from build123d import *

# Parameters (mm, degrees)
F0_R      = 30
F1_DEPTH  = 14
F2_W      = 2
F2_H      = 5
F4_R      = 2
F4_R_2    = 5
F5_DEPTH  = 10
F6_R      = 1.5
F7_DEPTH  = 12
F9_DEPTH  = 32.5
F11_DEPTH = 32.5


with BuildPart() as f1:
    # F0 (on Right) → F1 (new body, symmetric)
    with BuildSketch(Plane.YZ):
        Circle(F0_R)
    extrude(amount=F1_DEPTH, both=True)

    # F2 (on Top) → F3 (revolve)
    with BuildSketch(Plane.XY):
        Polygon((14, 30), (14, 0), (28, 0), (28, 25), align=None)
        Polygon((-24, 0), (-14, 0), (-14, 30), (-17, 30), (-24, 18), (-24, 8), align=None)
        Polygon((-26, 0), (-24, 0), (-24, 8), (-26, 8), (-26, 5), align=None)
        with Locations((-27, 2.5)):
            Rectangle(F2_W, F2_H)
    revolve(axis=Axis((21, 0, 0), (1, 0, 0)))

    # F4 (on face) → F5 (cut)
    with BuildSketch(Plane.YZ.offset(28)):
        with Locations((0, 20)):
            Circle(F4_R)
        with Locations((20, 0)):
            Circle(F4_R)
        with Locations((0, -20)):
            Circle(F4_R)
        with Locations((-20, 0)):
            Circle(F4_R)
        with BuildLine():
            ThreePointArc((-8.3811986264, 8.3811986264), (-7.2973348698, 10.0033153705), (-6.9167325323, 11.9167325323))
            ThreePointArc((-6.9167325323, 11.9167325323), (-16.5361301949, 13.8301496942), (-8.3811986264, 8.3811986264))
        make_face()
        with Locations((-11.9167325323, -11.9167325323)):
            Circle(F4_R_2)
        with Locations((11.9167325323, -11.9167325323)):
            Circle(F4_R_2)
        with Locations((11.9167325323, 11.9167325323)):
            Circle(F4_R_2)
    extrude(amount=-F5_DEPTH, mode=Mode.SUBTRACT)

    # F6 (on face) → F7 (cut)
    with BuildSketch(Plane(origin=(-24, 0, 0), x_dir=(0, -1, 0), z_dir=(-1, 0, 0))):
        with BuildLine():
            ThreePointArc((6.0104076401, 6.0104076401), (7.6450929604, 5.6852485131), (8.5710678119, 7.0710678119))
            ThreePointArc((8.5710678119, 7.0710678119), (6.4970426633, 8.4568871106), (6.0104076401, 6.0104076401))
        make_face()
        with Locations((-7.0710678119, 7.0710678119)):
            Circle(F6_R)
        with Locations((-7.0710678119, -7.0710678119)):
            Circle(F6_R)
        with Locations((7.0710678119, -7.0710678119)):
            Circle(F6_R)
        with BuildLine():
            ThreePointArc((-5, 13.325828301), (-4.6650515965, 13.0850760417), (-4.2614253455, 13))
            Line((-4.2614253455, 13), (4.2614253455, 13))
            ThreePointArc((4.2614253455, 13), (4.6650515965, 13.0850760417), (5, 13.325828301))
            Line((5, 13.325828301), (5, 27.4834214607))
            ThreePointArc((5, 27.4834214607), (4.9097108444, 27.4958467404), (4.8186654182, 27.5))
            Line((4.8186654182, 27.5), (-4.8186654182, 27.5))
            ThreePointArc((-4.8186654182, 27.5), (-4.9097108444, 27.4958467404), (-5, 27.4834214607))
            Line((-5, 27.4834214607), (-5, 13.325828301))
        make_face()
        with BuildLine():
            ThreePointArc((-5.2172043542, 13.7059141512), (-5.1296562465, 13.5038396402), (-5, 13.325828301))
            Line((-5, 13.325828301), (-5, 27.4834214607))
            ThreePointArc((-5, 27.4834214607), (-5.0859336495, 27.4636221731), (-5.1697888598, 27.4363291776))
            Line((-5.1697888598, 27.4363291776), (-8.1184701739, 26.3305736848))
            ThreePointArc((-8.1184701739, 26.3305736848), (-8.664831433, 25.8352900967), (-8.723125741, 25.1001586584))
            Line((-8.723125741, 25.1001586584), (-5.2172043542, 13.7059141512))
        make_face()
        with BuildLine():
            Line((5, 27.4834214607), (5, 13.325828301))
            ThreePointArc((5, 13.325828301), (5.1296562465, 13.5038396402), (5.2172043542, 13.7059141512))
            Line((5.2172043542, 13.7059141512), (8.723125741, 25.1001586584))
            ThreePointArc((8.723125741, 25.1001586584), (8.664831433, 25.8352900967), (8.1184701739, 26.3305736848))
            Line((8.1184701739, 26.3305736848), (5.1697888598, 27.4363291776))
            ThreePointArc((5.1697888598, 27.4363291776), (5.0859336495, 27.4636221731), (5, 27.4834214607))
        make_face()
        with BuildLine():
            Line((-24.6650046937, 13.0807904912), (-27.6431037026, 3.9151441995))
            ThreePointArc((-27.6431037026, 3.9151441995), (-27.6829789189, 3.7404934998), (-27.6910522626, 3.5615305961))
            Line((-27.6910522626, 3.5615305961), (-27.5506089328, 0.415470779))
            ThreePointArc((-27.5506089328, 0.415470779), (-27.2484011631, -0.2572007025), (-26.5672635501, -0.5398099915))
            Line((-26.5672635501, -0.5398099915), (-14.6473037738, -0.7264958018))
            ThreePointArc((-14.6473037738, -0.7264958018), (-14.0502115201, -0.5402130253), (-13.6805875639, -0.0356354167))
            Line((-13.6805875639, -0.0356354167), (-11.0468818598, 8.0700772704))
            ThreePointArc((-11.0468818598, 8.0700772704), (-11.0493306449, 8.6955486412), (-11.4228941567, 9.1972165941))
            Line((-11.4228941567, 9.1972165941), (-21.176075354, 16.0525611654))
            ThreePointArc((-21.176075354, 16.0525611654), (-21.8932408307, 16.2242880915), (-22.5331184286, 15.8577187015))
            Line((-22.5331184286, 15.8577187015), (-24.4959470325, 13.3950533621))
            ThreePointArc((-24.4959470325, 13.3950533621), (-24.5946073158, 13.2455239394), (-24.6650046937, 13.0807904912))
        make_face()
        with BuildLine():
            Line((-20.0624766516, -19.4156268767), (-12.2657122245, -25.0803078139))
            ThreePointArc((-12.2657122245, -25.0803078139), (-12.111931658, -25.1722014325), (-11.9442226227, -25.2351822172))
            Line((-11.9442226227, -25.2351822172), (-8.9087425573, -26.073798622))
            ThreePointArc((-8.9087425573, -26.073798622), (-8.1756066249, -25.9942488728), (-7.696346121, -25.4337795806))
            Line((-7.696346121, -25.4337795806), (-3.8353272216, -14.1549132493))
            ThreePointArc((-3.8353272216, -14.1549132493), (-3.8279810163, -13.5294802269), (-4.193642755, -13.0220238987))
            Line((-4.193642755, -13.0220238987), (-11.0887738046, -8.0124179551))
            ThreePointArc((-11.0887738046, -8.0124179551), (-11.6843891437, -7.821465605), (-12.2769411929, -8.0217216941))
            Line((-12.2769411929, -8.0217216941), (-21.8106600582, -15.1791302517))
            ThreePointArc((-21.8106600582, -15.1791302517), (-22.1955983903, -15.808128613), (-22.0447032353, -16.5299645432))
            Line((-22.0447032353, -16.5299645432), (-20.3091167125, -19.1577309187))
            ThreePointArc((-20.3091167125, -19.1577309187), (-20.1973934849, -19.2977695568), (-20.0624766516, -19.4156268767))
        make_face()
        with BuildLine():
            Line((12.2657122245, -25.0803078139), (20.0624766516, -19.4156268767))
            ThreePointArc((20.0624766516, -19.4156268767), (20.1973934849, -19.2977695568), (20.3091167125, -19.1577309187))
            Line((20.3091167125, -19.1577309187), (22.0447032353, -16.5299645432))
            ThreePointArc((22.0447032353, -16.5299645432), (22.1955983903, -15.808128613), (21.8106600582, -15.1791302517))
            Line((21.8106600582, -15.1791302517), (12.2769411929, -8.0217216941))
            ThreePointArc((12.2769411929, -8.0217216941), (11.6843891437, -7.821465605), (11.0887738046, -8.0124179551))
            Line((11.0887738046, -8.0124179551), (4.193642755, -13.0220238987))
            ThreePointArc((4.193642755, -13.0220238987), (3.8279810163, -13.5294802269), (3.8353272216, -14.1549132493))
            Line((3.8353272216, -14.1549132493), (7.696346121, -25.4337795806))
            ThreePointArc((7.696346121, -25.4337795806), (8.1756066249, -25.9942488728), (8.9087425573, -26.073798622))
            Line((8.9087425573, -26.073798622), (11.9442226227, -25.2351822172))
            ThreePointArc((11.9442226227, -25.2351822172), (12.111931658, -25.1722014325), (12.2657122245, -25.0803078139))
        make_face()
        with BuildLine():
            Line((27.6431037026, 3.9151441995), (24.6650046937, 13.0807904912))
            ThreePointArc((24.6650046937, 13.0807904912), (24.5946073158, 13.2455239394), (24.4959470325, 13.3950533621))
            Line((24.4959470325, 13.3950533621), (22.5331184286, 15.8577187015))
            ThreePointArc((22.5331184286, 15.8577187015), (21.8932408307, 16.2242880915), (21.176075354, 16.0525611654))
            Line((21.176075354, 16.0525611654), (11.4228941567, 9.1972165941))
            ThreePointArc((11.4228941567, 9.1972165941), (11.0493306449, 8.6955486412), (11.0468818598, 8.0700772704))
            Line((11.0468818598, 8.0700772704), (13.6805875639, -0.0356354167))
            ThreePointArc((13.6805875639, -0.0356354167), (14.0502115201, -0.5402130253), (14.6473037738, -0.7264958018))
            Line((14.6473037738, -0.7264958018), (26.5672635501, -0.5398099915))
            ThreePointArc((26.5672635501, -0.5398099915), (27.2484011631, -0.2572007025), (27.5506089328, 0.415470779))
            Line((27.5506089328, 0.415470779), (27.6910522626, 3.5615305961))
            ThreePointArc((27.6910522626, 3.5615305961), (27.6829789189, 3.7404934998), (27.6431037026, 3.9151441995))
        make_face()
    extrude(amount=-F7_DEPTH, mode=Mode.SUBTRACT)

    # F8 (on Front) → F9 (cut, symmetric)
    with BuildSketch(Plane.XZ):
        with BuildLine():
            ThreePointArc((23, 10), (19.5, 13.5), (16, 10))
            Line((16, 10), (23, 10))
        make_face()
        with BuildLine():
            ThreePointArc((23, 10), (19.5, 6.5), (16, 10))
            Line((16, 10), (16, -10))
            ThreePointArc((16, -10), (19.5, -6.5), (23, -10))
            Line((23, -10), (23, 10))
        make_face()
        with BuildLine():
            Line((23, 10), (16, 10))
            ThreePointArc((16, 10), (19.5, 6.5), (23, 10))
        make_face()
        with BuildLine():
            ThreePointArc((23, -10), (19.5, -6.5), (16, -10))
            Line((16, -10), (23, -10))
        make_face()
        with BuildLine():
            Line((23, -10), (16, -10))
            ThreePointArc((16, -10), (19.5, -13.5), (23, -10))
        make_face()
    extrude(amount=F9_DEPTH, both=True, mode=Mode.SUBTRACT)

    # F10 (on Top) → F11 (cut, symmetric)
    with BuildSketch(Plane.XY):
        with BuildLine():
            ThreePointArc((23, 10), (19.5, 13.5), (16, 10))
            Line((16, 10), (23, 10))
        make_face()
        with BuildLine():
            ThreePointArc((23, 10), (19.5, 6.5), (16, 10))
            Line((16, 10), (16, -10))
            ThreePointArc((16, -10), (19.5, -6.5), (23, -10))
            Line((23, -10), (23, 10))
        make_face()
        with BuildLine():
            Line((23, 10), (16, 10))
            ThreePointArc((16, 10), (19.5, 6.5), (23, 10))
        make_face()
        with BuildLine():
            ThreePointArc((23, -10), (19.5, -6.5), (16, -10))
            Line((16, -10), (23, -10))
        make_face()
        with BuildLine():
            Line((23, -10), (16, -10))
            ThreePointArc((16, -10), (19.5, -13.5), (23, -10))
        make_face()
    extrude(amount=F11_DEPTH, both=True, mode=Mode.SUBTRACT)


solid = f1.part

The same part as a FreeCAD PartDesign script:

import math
import FreeCAD as App
import Part
import Sketcher
from FreeCAD import Vector
Q = App.Units.Quantity


def add_polygon(sketch, points):
    """Adds a closed chain of lines whose ends are joined by coincident constraints."""
    first, n = sketch.GeometryCount, len(points)
    for a, b in zip(points, points[1:] + points[:1]):
        sketch.addGeometry(Part.LineSegment(App.Vector(*a, 0), App.Vector(*b, 0)), False)
    for i in range(n):
        sketch.addConstraint(Sketcher.Constraint("Coincident", first + i, 2, first + (i + 1) % n, 1))

doc = App.newDocument("Part")
body = doc.addObject("PartDesign::Body", "Body")

# Sketch on YZ plane
sketch1 = body.newObject("Sketcher::SketchObject", "Sketch")
sketch1.AttachmentSupport = (doc.getObject("YZ_Plane"), [""])
sketch1.MapMode = "FlatFace"
sketch1.addGeometry(Part.Circle(Vector(0, 0, 0), Vector(0, 0, 1), 30), False)
sketch1.addConstraint([
    Sketcher.Constraint("Coincident", 0, 3, -1, 1),
    Sketcher.Constraint("Diameter", 0, 60.0),
])
pad1 = body.newObject("PartDesign::Pad", "Pad")
pad1.Profile = sketch1
pad1.Length = 28
pad1.Midplane = True

# Sketch on XY plane
sketch2 = body.newObject("Sketcher::SketchObject", "Sketch001")
sketch2.AttachmentSupport = (doc.getObject("XY_Plane"), [""])
sketch2.MapMode = "FlatFace"
add_polygon(sketch2, [(14, 30), (14, 0), (28, 0), (28, 25)])  # lines 0-3
add_polygon(sketch2, [(-14, 0), (-14, 30), (-17, 30), (-24, 18), (-24, 8), (-26, 8), (-26, 5), (-28, 5), (-28, 0)])  # lines 4-12
sketch2.addConstraint([
    Sketcher.Constraint("Vertical", 0),
    Sketcher.Constraint("Horizontal", 1),
    Sketcher.Constraint("Vertical", 2),
    Sketcher.Constraint("Vertical", 4),
    Sketcher.Constraint("Horizontal", 5),
    Sketcher.Constraint("Vertical", 7),
    Sketcher.Constraint("Horizontal", 8),
    Sketcher.Constraint("Vertical", 9),
    Sketcher.Constraint("Horizontal", 10),
    Sketcher.Constraint("Vertical", 11),
    Sketcher.Constraint("Horizontal", 12),
    Sketcher.Constraint("Symmetric", 1, 2, 11, 2, -1, 1),
    Sketcher.Constraint("Symmetric", 3, 2, 4, 2, -2),
    Sketcher.Constraint("PointOnObject", 0, 2, -1),
    Sketcher.Constraint("Equal", 8, 10),
    Sketcher.Constraint("Equal", 5, 9),
    Sketcher.Constraint("DistanceX", 1, 1, 1, 2, 14.0),
    Sketcher.Constraint("DistanceX", 5, 2, 5, 1, 3.0),
    Sketcher.Constraint("DistanceX", 8, 2, 8, 1, 2.0),
    Sketcher.Constraint("DistanceY", 0, 2, 0, 1, 30.0),
    Sketcher.Constraint("DistanceY", 2, 1, 2, 2, 25.0),
    Sketcher.Constraint("DistanceY", 7, 2, 7, 1, 10.0),
    Sketcher.Constraint("DistanceY", 11, 2, 11, 1, 5.0),
    Sketcher.Constraint("DistanceX", -1, 1, 0, 2, 14.0),
])
revolution = body.newObject("PartDesign::Revolution", "Revolution")
revolution.Profile = sketch2
revolution.ReferenceAxis = (sketch2, ["H_Axis"])
revolution.Angle = 360

# Sketch on YZ plane
sketch3 = body.newObject("Sketcher::SketchObject", "Sketch002")
sketch3.AttachmentSupport = (doc.getObject("YZ_Plane"), [""])
sketch3.MapMode = "FlatFace"
sketch3.AttachmentOffset = App.Placement(Vector(0, 0, 28), App.Rotation())
sketch3.addGeometry([
    Part.Circle(Vector(0, 20, 0), Vector(0, 0, 1), 2),  # 0
    Part.Circle(Vector(20, 0, 0), Vector(0, 0, 1), 2),  # 1
    Part.Circle(Vector(0, -20, 0), Vector(0, 0, 1), 2),  # 2
    Part.Circle(Vector(-20, 0, 0), Vector(0, 0, 1), 2),  # 3
    Part.ArcOfCircle(Part.Circle(Vector(-11.9, 11.9, 0), Vector(0, 0, 1), 5), math.radians(-45), math.radians(0)),  # 4
    Part.ArcOfCircle(Part.Circle(Vector(-11.9, 11.9, 0), Vector(0, 0, 1), 5), math.radians(0), math.radians(315)),  # 5
    Part.Circle(Vector(-11.9, -11.9, 0), Vector(0, 0, 1), 5),  # 6
    Part.Circle(Vector(11.9, -11.9, 0), Vector(0, 0, 1), 5),  # 7
    Part.Circle(Vector(11.9, 11.9, 0), Vector(0, 0, 1), 5),  # 8
], False)
sketch3.addConstraint([
    Sketcher.Constraint("Tangent", 4, 1, 5, 2),
    Sketcher.Constraint("Coincident", 5, 1, 4, 2),
    Sketcher.Constraint("Equal", 0, 1),
    Sketcher.Constraint("Equal", 1, 2),
    Sketcher.Constraint("Equal", 2, 3),
    Sketcher.Constraint("Equal", 5, 6),
    Sketcher.Constraint("Equal", 6, 7),
    Sketcher.Constraint("Equal", 7, 8),
    Sketcher.Constraint("Symmetric", 0, 3, 2, 3, -1, 1),
    Sketcher.Constraint("Symmetric", 1, 3, 3, 3, -1, 1),
    Sketcher.Constraint("Symmetric", 4, 3, 7, 3, -1, 1),
    Sketcher.Constraint("Symmetric", 6, 3, 8, 3, -1, 1),
    Sketcher.Constraint("Symmetric", 6, 3, 7, 3, -2),
    Sketcher.Constraint("PointOnObject", 0, 3, -2),
    Sketcher.Constraint("PointOnObject", 1, 3, -1),
    Sketcher.Constraint("Horizontal", 8, 3, 5, 1),
    Sketcher.Constraint("Diameter", 0, 4.0),
    Sketcher.Constraint("Diameter", 6, 10.0),
    Sketcher.Constraint("DistanceY", -1, 1, 0, 3, 20.0),
    Sketcher.Constraint("DistanceX", -1, 1, 1, 3, 20.0),
    Sketcher.Constraint("DistanceX", 4, 1, -1, 1, 8.381199),
    Sketcher.Constraint("DistanceY", -1, 1, 4, 1, 8.381199),
    Sketcher.Constraint("DistanceY", 6, 3, 4, 1, 20.297931),
])
pocket1 = body.newObject("PartDesign::Pocket", "Pocket")
pocket1.Profile = sketch3
pocket1.Length = 10

# Sketch on YZ plane
sketch4 = body.newObject("Sketcher::SketchObject", "Sketch003")
sketch4.AttachmentSupport = (doc.getObject("YZ_Plane"), [""])
sketch4.MapMode = "FlatFace"
sketch4.AttachmentOffset = App.Placement(Vector(0, 0, -24), App.Rotation())
sketch4.addGeometry([
    Part.ArcOfCircle(Part.Circle(Vector(-7.07, 7.07, 0), Vector(0, 0, 1), 1.5), math.radians(180), math.radians(315)),  # 0
    Part.ArcOfCircle(Part.Circle(Vector(-7.07, 7.07, 0), Vector(0, 0, 1), 1.5), math.radians(-45), math.radians(180)),  # 1
    Part.Circle(Vector(7.07, 7.07, 0), Vector(0, 0, 1), 1.5),  # 2
    Part.Circle(Vector(7.07, -7.07, 0), Vector(0, 0, 1), 1.5),  # 3
    Part.Circle(Vector(-7.07, -7.07, 0), Vector(0, 0, 1), 1.5),  # 4
    Part.ArcOfCircle(Part.Circle(Vector(4.26, 14, 0), Vector(0, 0, 1), 1), math.radians(-90), math.radians(-42)),  # 5
    Part.LineSegment(Vector(4.26, 13, 0), Vector(-4.26, 13, 0)),  # 6
    Part.ArcOfCircle(Part.Circle(Vector(-4.26, 14, 0), Vector(0, 0, 1), 1), math.radians(-138), math.radians(-90)),  # 7
    Part.ArcOfCircle(Part.Circle(Vector(-4.26, 14, 0), Vector(0, 0, 1), 1), math.radians(-163), math.radians(-138)),  # 8
    Part.LineSegment(Vector(-5.22, 13.71, 0), Vector(-8.72, 25.1, 0)),  # 9
    Part.ArcOfCircle(Part.Circle(Vector(-7.77, 25.39, 0), Vector(0, 0, 1), 1), math.radians(111), math.radians(197)),  # 10
    Part.LineSegment(Vector(-8.12, 26.33, 0), Vector(-5.17, 27.44, 0)),  # 11
    Part.ArcOfCircle(Part.Circle(Vector(-4.82, 26.5, 0), Vector(0, 0, 1), 1), math.radians(100.45), math.radians(110.56)),  # 12
    Part.ArcOfCircle(Part.Circle(Vector(-4.82, 26.5, 0), Vector(0, 0, 1), 1), math.radians(90), math.radians(100.45)),  # 13
    Part.LineSegment(Vector(-4.82, 27.5, 0), Vector(4.82, 27.5, 0)),  # 14
    Part.ArcOfCircle(Part.Circle(Vector(4.82, 26.5, 0), Vector(0, 0, 1), 1), math.radians(79.55), math.radians(90)),  # 15
    Part.ArcOfCircle(Part.Circle(Vector(4.82, 26.5, 0), Vector(0, 0, 1), 1), math.radians(69.44), math.radians(79.55)),  # 16
    Part.LineSegment(Vector(5.17, 27.44, 0), Vector(8.12, 26.33, 0)),  # 17
    Part.ArcOfCircle(Part.Circle(Vector(7.77, 25.39, 0), Vector(0, 0, 1), 1), math.radians(-17), math.radians(69)),  # 18
    Part.LineSegment(Vector(8.72, 25.1, 0), Vector(5.22, 13.71, 0)),  # 19
    Part.ArcOfCircle(Part.Circle(Vector(4.26, 14, 0), Vector(0, 0, 1), 1), math.radians(-42), math.radians(-17)),  # 20
    Part.LineSegment(Vector(24.67, 13.08, 0), Vector(27.64, 3.92, 0)),  # 21
    Part.ArcOfCircle(Part.Circle(Vector(26.69, 3.61, 0), Vector(0, 0, 1), 1), math.radians(-3), math.radians(18)),  # 22
    Part.LineSegment(Vector(27.69, 3.56, 0), Vector(27.55, 0.42, 0)),  # 23
    Part.ArcOfCircle(Part.Circle(Vector(26.55, 0.46, 0), Vector(0, 0, 1), 1), math.radians(-89), math.radians(-3)),  # 24
    Part.LineSegment(Vector(26.57, -0.54, 0), Vector(14.65, -0.73, 0)),  # 25
    Part.ArcOfCircle(Part.Circle(Vector(14.63, 0.27, 0), Vector(0, 0, 1), 1), math.radians(-162), math.radians(-89)),  # 26
    Part.LineSegment(Vector(13.68, -0.04, 0), Vector(11.05, 8.07, 0)),  # 27
    Part.ArcOfCircle(Part.Circle(Vector(12, 8.38, 0), Vector(0, 0, 1), 1), math.radians(125), math.radians(198)),  # 28
    Part.LineSegment(Vector(11.42, 9.2, 0), Vector(21.18, 16.05, 0)),  # 29
    Part.ArcOfCircle(Part.Circle(Vector(21.75, 15.23, 0), Vector(0, 0, 1), 1), math.radians(39), math.radians(125)),  # 30
    Part.LineSegment(Vector(22.53, 15.86, 0), Vector(24.5, 13.4, 0)),  # 31
    Part.ArcOfCircle(Part.Circle(Vector(23.71, 12.77, 0), Vector(0, 0, 1), 1), math.radians(18), math.radians(39)),  # 32
    Part.LineSegment(Vector(20.06, -19.42, 0), Vector(12.27, -25.08, 0)),  # 33
    Part.ArcOfCircle(Part.Circle(Vector(11.68, -24.27, 0), Vector(0, 0, 1), 1), math.radians(-75), math.radians(-54)),  # 34
    Part.LineSegment(Vector(11.94, -25.24, 0), Vector(8.91, -26.07, 0)),  # 35
    Part.ArcOfCircle(Part.Circle(Vector(8.64, -25.11, 0), Vector(0, 0, 1), 1), math.radians(-161), math.radians(-75)),  # 36
    Part.LineSegment(Vector(7.7, -25.43, 0), Vector(3.84, -14.15, 0)),  # 37
    Part.ArcOfCircle(Part.Circle(Vector(4.78, -13.83, 0), Vector(0, 0, 1), 1), math.radians(126), math.radians(199)),  # 38
    Part.LineSegment(Vector(4.19, -13.02, 0), Vector(11.09, -8.01, 0)),  # 39
    Part.ArcOfCircle(Part.Circle(Vector(11.68, -8.82, 0), Vector(0, 0, 1), 1), math.radians(53), math.radians(126)),  # 40
    Part.LineSegment(Vector(12.28, -8.02, 0), Vector(21.81, -15.18, 0)),  # 41
    Part.ArcOfCircle(Part.Circle(Vector(21.21, -15.98, 0), Vector(0, 0, 1), 1), math.radians(-33), math.radians(53)),  # 42
    Part.LineSegment(Vector(22.04, -16.53, 0), Vector(20.31, -19.16, 0)),  # 43
    Part.ArcOfCircle(Part.Circle(Vector(19.47, -18.61, 0), Vector(0, 0, 1), 1), math.radians(-54), math.radians(-33)),  # 44
    Part.LineSegment(Vector(-12.27, -25.08, 0), Vector(-20.06, -19.42, 0)),  # 45
    Part.ArcOfCircle(Part.Circle(Vector(-19.47, -18.61, 0), Vector(0, 0, 1), 1), math.radians(-147), math.radians(-126)),  # 46
    Part.LineSegment(Vector(-20.31, -19.16, 0), Vector(-22.04, -16.53, 0)),  # 47
    Part.ArcOfCircle(Part.Circle(Vector(-21.21, -15.98, 0), Vector(0, 0, 1), 1), math.radians(127), math.radians(213)),  # 48
    Part.LineSegment(Vector(-21.81, -15.18, 0), Vector(-12.28, -8.02, 0)),  # 49
    Part.ArcOfCircle(Part.Circle(Vector(-11.68, -8.82, 0), Vector(0, 0, 1), 1), math.radians(54), math.radians(127)),  # 50
    Part.LineSegment(Vector(-11.09, -8.01, 0), Vector(-4.19, -13.02, 0)),  # 51
    Part.ArcOfCircle(Part.Circle(Vector(-4.78, -13.83, 0), Vector(0, 0, 1), 1), math.radians(-19), math.radians(54)),  # 52
    Part.LineSegment(Vector(-3.84, -14.15, 0), Vector(-7.7, -25.43, 0)),  # 53
    Part.ArcOfCircle(Part.Circle(Vector(-8.64, -25.11, 0), Vector(0, 0, 1), 1), math.radians(-105), math.radians(-19)),  # 54
    Part.LineSegment(Vector(-8.91, -26.07, 0), Vector(-11.94, -25.24, 0)),  # 55
    Part.ArcOfCircle(Part.Circle(Vector(-11.68, -24.27, 0), Vector(0, 0, 1), 1), math.radians(-126), math.radians(-105)),  # 56
    Part.LineSegment(Vector(-27.64, 3.92, 0), Vector(-24.67, 13.08, 0)),  # 57
    Part.ArcOfCircle(Part.Circle(Vector(-23.71, 12.77, 0), Vector(0, 0, 1), 1), math.radians(141), math.radians(162)),  # 58
    Part.LineSegment(Vector(-24.5, 13.4, 0), Vector(-22.53, 15.86, 0)),  # 59
    Part.ArcOfCircle(Part.Circle(Vector(-21.75, 15.23, 0), Vector(0, 0, 1), 1), math.radians(55), math.radians(141)),  # 60
    Part.LineSegment(Vector(-21.18, 16.05, 0), Vector(-11.42, 9.2, 0)),  # 61
    Part.ArcOfCircle(Part.Circle(Vector(-12, 8.38, 0), Vector(0, 0, 1), 1), math.radians(-18), math.radians(55)),  # 62
    Part.LineSegment(Vector(-11.05, 8.07, 0), Vector(-13.68, -0.04, 0)),  # 63
    Part.ArcOfCircle(Part.Circle(Vector(-14.63, 0.27, 0), Vector(0, 0, 1), 1), math.radians(-91), math.radians(-18)),  # 64
    Part.LineSegment(Vector(-14.65, -0.73, 0), Vector(-26.57, -0.54, 0)),  # 65
    Part.ArcOfCircle(Part.Circle(Vector(-26.55, 0.46, 0), Vector(0, 0, 1), 1), math.radians(-177), math.radians(-91)),  # 66
    Part.LineSegment(Vector(-27.55, 0.42, 0), Vector(-27.69, 3.56, 0)),  # 67
    Part.ArcOfCircle(Part.Circle(Vector(-26.69, 3.61, 0), Vector(0, 0, 1), 1), math.radians(162), math.radians(183)),  # 68
], False)
sketch4.addConstraint([
    Sketcher.Constraint("Tangent", 0, 1, 1, 2),
    Sketcher.Constraint("Coincident", 1, 1, 0, 2),
    Sketcher.Constraint("Tangent", 5, 1, 6, 1),
    Sketcher.Constraint("Tangent", 6, 2, 7, 2),
    Sketcher.Constraint("Tangent", 7, 1, 8, 2),
    Sketcher.Constraint("Tangent", 8, 1, 9, 1),
    Sketcher.Constraint("Tangent", 9, 2, 10, 2),
    Sketcher.Constraint("Tangent", 10, 1, 11, 1),
    Sketcher.Constraint("Tangent", 11, 2, 12, 2),
    Sketcher.Constraint("Tangent", 12, 1, 13, 2),
    Sketcher.Constraint("Tangent", 13, 1, 14, 1),
    Sketcher.Constraint("Tangent", 14, 2, 15, 2),
    Sketcher.Constraint("Tangent", 15, 1, 16, 2),
    Sketcher.Constraint("Tangent", 16, 1, 17, 1),
    Sketcher.Constraint("Tangent", 17, 2, 18, 2),
    Sketcher.Constraint("Tangent", 18, 1, 19, 1),
    Sketcher.Constraint("Tangent", 19, 2, 20, 2),
    Sketcher.Constraint("Tangent", 20, 1, 5, 2),
    Sketcher.Constraint("Tangent", 21, 2, 22, 2),
    Sketcher.Constraint("Tangent", 22, 1, 23, 1),
    Sketcher.Constraint("Tangent", 23, 2, 24, 2),
    Sketcher.Constraint("Tangent", 24, 1, 25, 1),
    Sketcher.Constraint("Tangent", 25, 2, 26, 2),
    Sketcher.Constraint("Tangent", 26, 1, 27, 1),
    Sketcher.Constraint("Tangent", 27, 2, 28, 2),
    Sketcher.Constraint("Tangent", 28, 1, 29, 1),
    Sketcher.Constraint("Tangent", 29, 2, 30, 2),
    Sketcher.Constraint("Tangent", 30, 1, 31, 1),
    Sketcher.Constraint("Tangent", 31, 2, 32, 2),
    Sketcher.Constraint("Tangent", 32, 1, 21, 1),
    Sketcher.Constraint("Tangent", 33, 2, 34, 2),
    Sketcher.Constraint("Tangent", 34, 1, 35, 1),
    Sketcher.Constraint("Tangent", 35, 2, 36, 2),
    Sketcher.Constraint("Tangent", 36, 1, 37, 1),
    Sketcher.Constraint("Tangent", 37, 2, 38, 2),
    Sketcher.Constraint("Tangent", 38, 1, 39, 1),
    Sketcher.Constraint("Tangent", 39, 2, 40, 2),
    Sketcher.Constraint("Tangent", 40, 1, 41, 1),
    Sketcher.Constraint("Tangent", 41, 2, 42, 2),
    Sketcher.Constraint("Tangent", 42, 1, 43, 1),
    Sketcher.Constraint("Tangent", 43, 2, 44, 2),
    Sketcher.Constraint("Tangent", 44, 1, 33, 1),
    Sketcher.Constraint("Tangent", 45, 2, 46, 2),
    Sketcher.Constraint("Tangent", 46, 1, 47, 1),
    Sketcher.Constraint("Tangent", 47, 2, 48, 2),
    Sketcher.Constraint("Tangent", 48, 1, 49, 1),
    Sketcher.Constraint("Tangent", 49, 2, 50, 2),
    Sketcher.Constraint("Tangent", 50, 1, 51, 1),
    Sketcher.Constraint("Tangent", 51, 2, 52, 2),
    Sketcher.Constraint("Tangent", 52, 1, 53, 1),
    Sketcher.Constraint("Tangent", 53, 2, 54, 2),
    Sketcher.Constraint("Tangent", 54, 1, 55, 1),
    Sketcher.Constraint("Tangent", 55, 2, 56, 2),
    Sketcher.Constraint("Tangent", 56, 1, 45, 1),
    Sketcher.Constraint("Tangent", 57, 2, 58, 2),
    Sketcher.Constraint("Tangent", 58, 1, 59, 1),
    Sketcher.Constraint("Tangent", 59, 2, 60, 2),
    Sketcher.Constraint("Tangent", 60, 1, 61, 1),
    Sketcher.Constraint("Tangent", 61, 2, 62, 2),
    Sketcher.Constraint("Tangent", 62, 1, 63, 1),
    Sketcher.Constraint("Tangent", 63, 2, 64, 2),
    Sketcher.Constraint("Tangent", 64, 1, 65, 1),
    Sketcher.Constraint("Tangent", 65, 2, 66, 2),
    Sketcher.Constraint("Tangent", 66, 1, 67, 1),
    Sketcher.Constraint("Tangent", 67, 2, 68, 2),
    Sketcher.Constraint("Tangent", 68, 1, 57, 1),
    Sketcher.Constraint("Horizontal", 6),
    Sketcher.Constraint("Horizontal", 14),
    Sketcher.Constraint("Equal", 1, 2),
    Sketcher.Constraint("Equal", 2, 3),
    Sketcher.Constraint("Equal", 3, 4),
    Sketcher.Constraint("Equal", 5, 7),
    Sketcher.Constraint("Equal", 7, 8),
    Sketcher.Constraint("Equal", 8, 10),
    Sketcher.Constraint("Equal", 10, 12),
    Sketcher.Constraint("Equal", 12, 13),
    Sketcher.Constraint("Equal", 13, 15),
    Sketcher.Constraint("Equal", 15, 16),
    Sketcher.Constraint("Equal", 16, 18),
    Sketcher.Constraint("Equal", 18, 20),
    Sketcher.Constraint("Equal", 20, 22),
    Sketcher.Constraint("Equal", 22, 24),
    Sketcher.Constraint("Equal", 24, 26),
    Sketcher.Constraint("Equal", 26, 28),
    Sketcher.Constraint("Equal", 28, 30),
    Sketcher.Constraint("Equal", 30, 32),
    Sketcher.Constraint("Equal", 32, 34),
    Sketcher.Constraint("Equal", 34, 36),
    Sketcher.Constraint("Equal", 36, 38),
    Sketcher.Constraint("Equal", 38, 40),
    Sketcher.Constraint("Equal", 40, 42),
    Sketcher.Constraint("Equal", 42, 44),
    Sketcher.Constraint("Equal", 44, 46),
    Sketcher.Constraint("Equal", 46, 48),
    Sketcher.Constraint("Equal", 48, 50),
    Sketcher.Constraint("Equal", 50, 52),
    Sketcher.Constraint("Equal", 52, 54),
    Sketcher.Constraint("Equal", 54, 56),
    Sketcher.Constraint("Equal", 56, 58),
    Sketcher.Constraint("Equal", 58, 60),
    Sketcher.Constraint("Equal", 60, 62),
    Sketcher.Constraint("Equal", 62, 64),
    Sketcher.Constraint("Equal", 64, 66),
    Sketcher.Constraint("Equal", 66, 68),
    Sketcher.Constraint("Symmetric", 0, 3, 3, 3, -1, 1),
    Sketcher.Constraint("Symmetric", 2, 3, 4, 3, -1, 1),
    Sketcher.Constraint("Symmetric", 0, 3, 2, 3, -2),
    Sketcher.Constraint("Symmetric", 10, 3, 18, 3, -2),
    Sketcher.Constraint("Symmetric", 44, 3, 46, 3, -2),
    Sketcher.Constraint("Symmetric", 42, 3, 48, 3, -2),
    Sketcher.Constraint("Symmetric", 40, 3, 50, 3, -2),
    Sketcher.Constraint("Symmetric", 38, 3, 52, 3, -2),
    Sketcher.Constraint("Symmetric", 36, 3, 54, 3, -2),
    Sketcher.Constraint("Symmetric", 34, 3, 56, 3, -2),
    Sketcher.Constraint("Symmetric", 32, 3, 58, 3, -2),
    Sketcher.Constraint("Symmetric", 30, 3, 60, 3, -2),
    Sketcher.Constraint("Symmetric", 28, 3, 62, 3, -2),
    Sketcher.Constraint("Symmetric", 26, 3, 64, 3, -2),
    Sketcher.Constraint("Symmetric", 24, 3, 66, 3, -2),
    Sketcher.Constraint("Symmetric", 22, 3, 68, 3, -2),
    Sketcher.Constraint("Symmetric", 12, 1, 15, 1, -2),
    Sketcher.Constraint("Symmetric", 7, 1, 20, 1, -2),
    Sketcher.Constraint("Parallel", 21, 27),
    Sketcher.Constraint("Parallel", 33, 39),
    Sketcher.Constraint("Horizontal", 2, 3, 0, 1),
    Sketcher.Constraint("Vertical", 7, 1, 12, 1),
    Sketcher.Constraint("Equal", 17, 23),
    Sketcher.Constraint("Equal", 19, 25),
    Sketcher.Constraint("Equal", 25, 29),
    Sketcher.Constraint("Equal", 23, 31),
    Sketcher.Constraint("Equal", 21, 33),
    Sketcher.Constraint("Equal", 31, 35),
    Sketcher.Constraint("Equal", 29, 37),
    Sketcher.Constraint("Equal", 27, 39),
    Sketcher.Constraint("Equal", 37, 41),
    Sketcher.Constraint("Equal", 35, 43),
    Sketcher.Constraint("Diameter", 2, 3.0),
    Sketcher.Constraint("Radius", 5, 1.0),
    Sketcher.Constraint("Angle", 21, Q("-72 deg")),
    Sketcher.Constraint("Angle", 33, Q("-144 deg")),
    Sketcher.Constraint("DistanceY", -1, 1, 5, 3, 14.0),
    Sketcher.Constraint("DistanceX", 7, 1, -1, 1, 5.0),
    Sketcher.Constraint("DistanceY", -1, 1, 12, 3, 26.5),
    Sketcher.Constraint("DistanceX", 6, 2, 6, 1, 8.522851),
    Sketcher.Constraint("DistanceX", 14, 1, 14, 2, 9.637331),
    Sketcher.Constraint("DistanceY", 35, 2, -1, 1, 26.073799),
    Sketcher.Constraint("Distance", 9, 11.921422),
    Sketcher.Constraint("Distance", 21, 9.637331),
    Sketcher.Constraint("Distance", 27, 8.522851),
    Sketcher.Constraint("DistanceY", -1, 1, 26, 3, 0.273382),
    Sketcher.Constraint("DistanceX", -1, 1, 28, 3, 11.997938),
    Sketcher.Constraint("DistanceX", -1, 1, 30, 3, 21.75112),
    Sketcher.Constraint("DistanceX", -1, 1, 32, 3, 23.713948),
    Sketcher.Constraint("DistanceY", 34, 3, -1, 1, 24.271291),
    Sketcher.Constraint("DistanceX", -1, 1, 38, 3, 4.781428),
    Sketcher.Constraint("DistanceY", 38, 3, -1, 1, 13.831041),
    Sketcher.Constraint("DistanceX", -1, 1, 44, 3, 19.474691),
    Sketcher.Constraint("DistanceX", 0, 3, -1, 1, 7.071068),
    Sketcher.Constraint("DistanceY", -1, 1, 0, 3, 7.071068),
    Sketcher.Constraint("DistanceX", 1, 1, -1, 1, 6.010408),
])
pocket2 = body.newObject("PartDesign::Pocket", "Pocket001")
pocket2.Profile = sketch4
pocket2.Length = 12
pocket2.Reversed = True

# Sketch on XZ plane
sketch5 = body.newObject("Sketcher::SketchObject", "Sketch004")
sketch5.AttachmentSupport = (doc.getObject("XZ_Plane"), [""])
sketch5.MapMode = "FlatFace"
sketch5.addGeometry([
    Part.ArcOfCircle(Part.Circle(Vector(19.5, 10, 0), Vector(0, 0, 1), 3.5), math.radians(0), math.radians(180)),
    Part.LineSegment(Vector(16, 10, 0), Vector(16, -10, 0)),
    Part.ArcOfCircle(Part.Circle(Vector(19.5, -10, 0), Vector(0, 0, 1), 3.5), math.radians(180), math.radians(360)),
    Part.LineSegment(Vector(23, -10, 0), Vector(23, 10, 0)),
], False)
sketch5.addConstraint([
    Sketcher.Constraint("Tangent", 0, 2, 1, 1),
    Sketcher.Constraint("Tangent", 1, 2, 2, 1),
    Sketcher.Constraint("Tangent", 2, 2, 3, 1),
    Sketcher.Constraint("Tangent", 3, 2, 0, 1),
    Sketcher.Constraint("Vertical", 1),
    Sketcher.Constraint("Vertical", 3),
    Sketcher.Constraint("Radius", 0, 3.5),
    Sketcher.Constraint("DistanceY", 1, 2, 1, 1, 20.0),
    Sketcher.Constraint("DistanceY", -1, 1, 0, 3, 10.0),
    Sketcher.Constraint("DistanceX", -1, 1, 0, 2, 16.0),
])
pocket3 = body.newObject("PartDesign::Pocket", "Pocket002")
pocket3.Profile = sketch5
pocket3.Length = 65
pocket3.Midplane = True

# Sketch on XY plane
sketch6 = body.newObject("Sketcher::SketchObject", "Sketch005")
sketch6.AttachmentSupport = (doc.getObject("XY_Plane"), [""])
sketch6.MapMode = "FlatFace"
sketch6.addGeometry([
    Part.ArcOfCircle(Part.Circle(Vector(19.5, 10, 0), Vector(0, 0, 1), 3.5), math.radians(0), math.radians(180)),
    Part.LineSegment(Vector(16, 10, 0), Vector(16, -10, 0)),
    Part.ArcOfCircle(Part.Circle(Vector(19.5, -10, 0), Vector(0, 0, 1), 3.5), math.radians(180), math.radians(360)),
    Part.LineSegment(Vector(23, -10, 0), Vector(23, 10, 0)),
], False)
sketch6.addConstraint([
    Sketcher.Constraint("Tangent", 0, 2, 1, 1),
    Sketcher.Constraint("Tangent", 1, 2, 2, 1),
    Sketcher.Constraint("Tangent", 2, 2, 3, 1),
    Sketcher.Constraint("Tangent", 3, 2, 0, 1),
    Sketcher.Constraint("Vertical", 1),
    Sketcher.Constraint("Vertical", 3),
    Sketcher.Constraint("Radius", 0, 3.5),
    Sketcher.Constraint("DistanceY", 1, 2, 1, 1, 20.0),
    Sketcher.Constraint("DistanceY", -1, 1, 0, 3, 10.0),
    Sketcher.Constraint("DistanceX", -1, 1, 0, 2, 16.0),
])
pocket4 = body.newObject("PartDesign::Pocket", "Pocket003")
pocket4.Profile = sketch6
pocket4.Length = 65
pocket4.Midplane = True

doc.recompute()
